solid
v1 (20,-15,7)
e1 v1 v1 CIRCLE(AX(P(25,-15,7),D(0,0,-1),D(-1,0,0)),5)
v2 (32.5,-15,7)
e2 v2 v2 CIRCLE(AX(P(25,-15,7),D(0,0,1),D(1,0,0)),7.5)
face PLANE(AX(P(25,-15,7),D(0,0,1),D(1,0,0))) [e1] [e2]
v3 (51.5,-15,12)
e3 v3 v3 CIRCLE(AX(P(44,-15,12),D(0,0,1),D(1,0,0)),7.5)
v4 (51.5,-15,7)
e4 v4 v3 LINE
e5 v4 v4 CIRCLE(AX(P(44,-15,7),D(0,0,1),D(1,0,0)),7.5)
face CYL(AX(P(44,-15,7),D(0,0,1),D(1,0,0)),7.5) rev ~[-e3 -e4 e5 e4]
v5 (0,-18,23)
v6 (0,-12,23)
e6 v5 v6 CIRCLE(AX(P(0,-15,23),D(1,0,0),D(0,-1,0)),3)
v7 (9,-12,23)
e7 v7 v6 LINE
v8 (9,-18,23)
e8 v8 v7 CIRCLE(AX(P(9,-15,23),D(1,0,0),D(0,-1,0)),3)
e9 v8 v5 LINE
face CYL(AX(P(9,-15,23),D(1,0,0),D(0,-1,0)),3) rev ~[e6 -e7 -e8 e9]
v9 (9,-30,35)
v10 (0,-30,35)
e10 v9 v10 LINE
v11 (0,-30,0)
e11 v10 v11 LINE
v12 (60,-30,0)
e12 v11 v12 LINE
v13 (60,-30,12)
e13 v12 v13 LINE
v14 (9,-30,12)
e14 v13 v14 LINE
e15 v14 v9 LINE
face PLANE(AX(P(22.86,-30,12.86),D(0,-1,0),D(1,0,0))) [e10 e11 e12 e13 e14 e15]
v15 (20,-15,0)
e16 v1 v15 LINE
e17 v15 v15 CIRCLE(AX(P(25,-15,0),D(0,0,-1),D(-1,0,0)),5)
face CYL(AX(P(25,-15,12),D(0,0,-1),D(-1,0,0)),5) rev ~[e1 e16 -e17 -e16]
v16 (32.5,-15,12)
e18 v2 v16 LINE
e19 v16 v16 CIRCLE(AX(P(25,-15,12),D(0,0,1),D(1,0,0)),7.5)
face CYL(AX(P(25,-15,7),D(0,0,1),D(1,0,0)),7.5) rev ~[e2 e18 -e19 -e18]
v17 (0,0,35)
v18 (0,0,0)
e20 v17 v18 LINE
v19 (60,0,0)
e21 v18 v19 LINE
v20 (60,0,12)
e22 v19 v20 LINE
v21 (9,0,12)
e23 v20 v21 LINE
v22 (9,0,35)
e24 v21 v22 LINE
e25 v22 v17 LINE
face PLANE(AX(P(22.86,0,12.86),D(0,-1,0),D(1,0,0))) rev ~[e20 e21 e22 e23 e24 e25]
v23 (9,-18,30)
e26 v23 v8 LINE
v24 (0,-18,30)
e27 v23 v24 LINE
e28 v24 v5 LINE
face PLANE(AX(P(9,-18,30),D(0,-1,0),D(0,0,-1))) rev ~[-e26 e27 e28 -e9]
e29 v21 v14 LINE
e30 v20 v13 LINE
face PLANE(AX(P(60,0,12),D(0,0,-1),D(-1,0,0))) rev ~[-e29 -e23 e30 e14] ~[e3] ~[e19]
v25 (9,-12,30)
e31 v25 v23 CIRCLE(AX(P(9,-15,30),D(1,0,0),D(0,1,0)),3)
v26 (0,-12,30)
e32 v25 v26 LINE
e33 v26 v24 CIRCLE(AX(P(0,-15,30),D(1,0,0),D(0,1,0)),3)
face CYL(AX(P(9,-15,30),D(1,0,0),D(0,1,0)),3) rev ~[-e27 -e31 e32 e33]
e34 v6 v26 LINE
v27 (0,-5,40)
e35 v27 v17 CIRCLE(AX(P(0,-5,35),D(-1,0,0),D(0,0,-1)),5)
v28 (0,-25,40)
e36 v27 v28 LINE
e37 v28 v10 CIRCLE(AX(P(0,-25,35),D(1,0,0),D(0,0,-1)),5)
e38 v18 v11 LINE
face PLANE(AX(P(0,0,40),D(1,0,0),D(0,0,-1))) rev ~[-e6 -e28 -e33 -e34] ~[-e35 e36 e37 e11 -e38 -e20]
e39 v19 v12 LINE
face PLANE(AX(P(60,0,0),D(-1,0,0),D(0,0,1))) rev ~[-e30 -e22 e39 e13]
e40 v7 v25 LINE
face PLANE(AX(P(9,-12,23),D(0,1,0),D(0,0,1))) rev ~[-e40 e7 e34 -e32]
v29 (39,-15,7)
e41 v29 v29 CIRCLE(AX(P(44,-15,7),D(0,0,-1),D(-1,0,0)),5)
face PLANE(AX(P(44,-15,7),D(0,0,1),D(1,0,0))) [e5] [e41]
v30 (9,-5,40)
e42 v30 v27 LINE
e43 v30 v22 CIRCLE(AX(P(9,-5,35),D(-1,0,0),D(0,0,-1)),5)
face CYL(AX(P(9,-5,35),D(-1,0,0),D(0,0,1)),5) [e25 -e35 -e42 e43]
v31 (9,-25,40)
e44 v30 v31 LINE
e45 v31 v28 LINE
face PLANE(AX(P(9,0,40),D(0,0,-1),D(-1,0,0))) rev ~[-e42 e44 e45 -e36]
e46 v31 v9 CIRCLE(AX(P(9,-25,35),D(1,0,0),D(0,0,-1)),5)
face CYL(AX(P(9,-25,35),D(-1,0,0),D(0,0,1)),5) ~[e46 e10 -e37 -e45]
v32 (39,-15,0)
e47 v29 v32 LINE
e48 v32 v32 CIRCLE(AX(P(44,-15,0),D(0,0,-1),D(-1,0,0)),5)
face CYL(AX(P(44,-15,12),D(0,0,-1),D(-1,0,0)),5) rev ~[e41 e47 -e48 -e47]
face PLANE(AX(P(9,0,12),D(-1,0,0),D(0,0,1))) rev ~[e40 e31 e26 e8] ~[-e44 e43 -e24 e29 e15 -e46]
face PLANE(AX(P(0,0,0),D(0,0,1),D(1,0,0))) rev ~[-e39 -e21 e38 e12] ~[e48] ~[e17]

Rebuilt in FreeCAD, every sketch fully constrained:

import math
import FreeCAD as App
import Part
import Sketcher

V = App.Vector


def edges_at(feature, points):
    """Names of the edges that pass closest to the given points."""
    edges = feature.Shape.Edges
    near = lambda p: min(range(len(edges)), key=lambda i: edges[i].distToShape(Part.Vertex(*p))[0])
    return sorted({f"Edge{near(p) + 1}" for p in points})


def add_polygon(sketch, points):
    """Adds a closed chain of lines whose ends are joined by coincident constraints."""
    first, n = sketch.GeometryCount, len(points)
    for a, b in zip(points, points[1:] + points[:1]):
        sketch.addGeometry(Part.LineSegment(App.Vector(*a, 0), App.Vector(*b, 0)), False)
    for i in range(n):
        sketch.addConstraint(Sketcher.Constraint("Coincident", first + i, 2, first + (i + 1) % n, 1))

doc = App.newDocument("Part")
body = doc.addObject("PartDesign::Body", "Body")

# Sketch on XZ plane
sketch1 = body.newObject("Sketcher::SketchObject", "Sketch")
sketch1.AttachmentSupport = (doc.getObject("XZ_Plane"), [""])
sketch1.MapMode = "FlatFace"
add_polygon(sketch1, [(0, 0), (60, 0), (60, 12), (9, 12), (9, 40), (0, 40)])  # lines 0-5
sketch1.addConstraint(Sketcher.Constraint("Horizontal", 0))
sketch1.addConstraint(Sketcher.Constraint("Vertical", 1))
sketch1.addConstraint(Sketcher.Constraint("Horizontal", 2))
sketch1.addConstraint(Sketcher.Constraint("Vertical", 3))
sketch1.addConstraint(Sketcher.Constraint("Horizontal", 4))
sketch1.addConstraint(Sketcher.Constraint("Vertical", 5))
sketch1.addConstraint(Sketcher.Constraint("Coincident", 5, 2, -1, 1))
sketch1.addConstraint(Sketcher.Constraint("DistanceX", 0, 1, 0, 2, 60.0))
sketch1.addConstraint(Sketcher.Constraint("DistanceX", 2, 2, 2, 1, 51.0))
sketch1.addConstraint(Sketcher.Constraint("DistanceY", 1, 1, 1, 2, 12.0))
sketch1.addConstraint(Sketcher.Constraint("DistanceY", 3, 1, 3, 2, 28.0))
pad1 = body.newObject("PartDesign::Pad", "Pad")
pad1.Profile = sketch1
pad1.Length = 30
doc.recompute()

fillet = body.newObject("PartDesign::Fillet", "Fillet")
fillet.Base = (pad1, edges_at(pad1, [(4.5, -30, 40)]))
fillet.Radius = 5
doc.recompute()

fillet2 = body.newObject("PartDesign::Fillet", "Fillet001")
fillet2.Base = (fillet, edges_at(fillet, [(4.5, 0, 40)]))
fillet2.Radius = 5

# Sketch on XY plane
sketch2 = body.newObject("Sketcher::SketchObject", "Sketch001")
sketch2.AttachmentSupport = (doc.getObject("XY_Plane"), [""])
sketch2.MapMode = "FlatFace"
sketch2.AttachmentOffset = App.Placement(V(0, 0, 12), App.Rotation())
sketch2.addGeometry(Part.Circle(V(44, -15, 0), V(0, 0, 1), 5), False)
sketch2.addConstraint(Sketcher.Constraint("Diameter", 0, 10.0))
sketch2.addConstraint(Sketcher.Constraint("DistanceX", -1, 1, 0, 3, 44.0))
sketch2.addConstraint(Sketcher.Constraint("DistanceY", 0, 3, -1, 1, 15.0))
doc.recompute()
hole = body.newObject("PartDesign::Hole", "Hole")
hole.Profile = sketch2
hole.ThreadType = "None"
hole.Diameter = 10
hole.DepthType = "ThroughAll"
hole.HoleCutType = "Counterbore"
hole.HoleCutDiameter = 15
hole.HoleCutDepth = 5

# Sketch on XY plane
sketch3 = body.newObject("Sketcher::SketchObject", "Sketch002")
sketch3.AttachmentSupport = (doc.getObject("XY_Plane"), [""])
sketch3.MapMode = "FlatFace"
sketch3.AttachmentOffset = App.Placement(V(0, 0, 12), App.Rotation())
sketch3.addGeometry(Part.Circle(V(25, -15, 0), V(0, 0, 1), 5), False)
sketch3.addConstraint(Sketcher.Constraint("Diameter", 0, 10.0))
sketch3.addConstraint(Sketcher.Constraint("DistanceX", -1, 1, 0, 3, 25.0))
sketch3.addConstraint(Sketcher.Constraint("DistanceY", 0, 3, -1, 1, 15.0))
doc.recompute()
hole2 = body.newObject("PartDesign::Hole", "Hole001")
hole2.Profile = sketch3
hole2.ThreadType = "None"
hole2.Diameter = 10
hole2.DepthType = "ThroughAll"
hole2.HoleCutType = "Counterbore"
hole2.HoleCutDiameter = 15
hole2.HoleCutDepth = 5

# Sketch on YZ plane
sketch4 = body.newObject("Sketcher::SketchObject", "Sketch003")
sketch4.AttachmentSupport = (doc.getObject("YZ_Plane"), [""])
sketch4.MapMode = "FlatFace"
sketch4.AttachmentOffset = App.Placement(V(0, 0, 9), App.Rotation())
sketch4.addGeometry(Part.ArcOfCircle(Part.Circle(V(-15, 30, 0), V(0, 0, 1), 3), math.radians(0), math.radians(180)), False)
sketch4.addGeometry(Part.LineSegment(V(-18, 30, 0), V(-18, 23, 0)), False)
sketch4.addGeometry(Part.ArcOfCircle(Part.Circle(V(-15, 23, 0), V(0, 0, 1), 3), math.radians(180), math.radians(360)), False)
sketch4.addGeometry(Part.LineSegment(V(-12, 23, 0), V(-12, 30, 0)), False)
sketch4.addConstraint(Sketcher.Constraint("Tangent", 0, 2, 1, 1))
sketch4.addConstraint(Sketcher.Constraint("Tangent", 1, 2, 2, 1))
sketch4.addConstraint(Sketcher.Constraint("Tangent", 2, 2, 3, 1))
sketch4.addConstraint(Sketcher.Constraint("Tangent", 3, 2, 0, 1))
sketch4.addConstraint(Sketcher.Constraint("Vertical", 1))
sketch4.addConstraint(Sketcher.Constraint("Vertical", 3))
sketch4.addConstraint(Sketcher.Constraint("Radius", 0, 3.0))
sketch4.addConstraint(Sketcher.Constraint("DistanceY", 1, 2, 1, 1, 7.0))
sketch4.addConstraint(Sketcher.Constraint("DistanceX", 0, 3, -1, 1, 15.0))
sketch4.addConstraint(Sketcher.Constraint("DistanceY", -1, 1, 0, 3, 30.0))
pocket1 = body.newObject("PartDesign::Pocket", "Pocket")
pocket1.Profile = sketch4
pocket1.Type = "ThroughAll"

doc.recompute()
